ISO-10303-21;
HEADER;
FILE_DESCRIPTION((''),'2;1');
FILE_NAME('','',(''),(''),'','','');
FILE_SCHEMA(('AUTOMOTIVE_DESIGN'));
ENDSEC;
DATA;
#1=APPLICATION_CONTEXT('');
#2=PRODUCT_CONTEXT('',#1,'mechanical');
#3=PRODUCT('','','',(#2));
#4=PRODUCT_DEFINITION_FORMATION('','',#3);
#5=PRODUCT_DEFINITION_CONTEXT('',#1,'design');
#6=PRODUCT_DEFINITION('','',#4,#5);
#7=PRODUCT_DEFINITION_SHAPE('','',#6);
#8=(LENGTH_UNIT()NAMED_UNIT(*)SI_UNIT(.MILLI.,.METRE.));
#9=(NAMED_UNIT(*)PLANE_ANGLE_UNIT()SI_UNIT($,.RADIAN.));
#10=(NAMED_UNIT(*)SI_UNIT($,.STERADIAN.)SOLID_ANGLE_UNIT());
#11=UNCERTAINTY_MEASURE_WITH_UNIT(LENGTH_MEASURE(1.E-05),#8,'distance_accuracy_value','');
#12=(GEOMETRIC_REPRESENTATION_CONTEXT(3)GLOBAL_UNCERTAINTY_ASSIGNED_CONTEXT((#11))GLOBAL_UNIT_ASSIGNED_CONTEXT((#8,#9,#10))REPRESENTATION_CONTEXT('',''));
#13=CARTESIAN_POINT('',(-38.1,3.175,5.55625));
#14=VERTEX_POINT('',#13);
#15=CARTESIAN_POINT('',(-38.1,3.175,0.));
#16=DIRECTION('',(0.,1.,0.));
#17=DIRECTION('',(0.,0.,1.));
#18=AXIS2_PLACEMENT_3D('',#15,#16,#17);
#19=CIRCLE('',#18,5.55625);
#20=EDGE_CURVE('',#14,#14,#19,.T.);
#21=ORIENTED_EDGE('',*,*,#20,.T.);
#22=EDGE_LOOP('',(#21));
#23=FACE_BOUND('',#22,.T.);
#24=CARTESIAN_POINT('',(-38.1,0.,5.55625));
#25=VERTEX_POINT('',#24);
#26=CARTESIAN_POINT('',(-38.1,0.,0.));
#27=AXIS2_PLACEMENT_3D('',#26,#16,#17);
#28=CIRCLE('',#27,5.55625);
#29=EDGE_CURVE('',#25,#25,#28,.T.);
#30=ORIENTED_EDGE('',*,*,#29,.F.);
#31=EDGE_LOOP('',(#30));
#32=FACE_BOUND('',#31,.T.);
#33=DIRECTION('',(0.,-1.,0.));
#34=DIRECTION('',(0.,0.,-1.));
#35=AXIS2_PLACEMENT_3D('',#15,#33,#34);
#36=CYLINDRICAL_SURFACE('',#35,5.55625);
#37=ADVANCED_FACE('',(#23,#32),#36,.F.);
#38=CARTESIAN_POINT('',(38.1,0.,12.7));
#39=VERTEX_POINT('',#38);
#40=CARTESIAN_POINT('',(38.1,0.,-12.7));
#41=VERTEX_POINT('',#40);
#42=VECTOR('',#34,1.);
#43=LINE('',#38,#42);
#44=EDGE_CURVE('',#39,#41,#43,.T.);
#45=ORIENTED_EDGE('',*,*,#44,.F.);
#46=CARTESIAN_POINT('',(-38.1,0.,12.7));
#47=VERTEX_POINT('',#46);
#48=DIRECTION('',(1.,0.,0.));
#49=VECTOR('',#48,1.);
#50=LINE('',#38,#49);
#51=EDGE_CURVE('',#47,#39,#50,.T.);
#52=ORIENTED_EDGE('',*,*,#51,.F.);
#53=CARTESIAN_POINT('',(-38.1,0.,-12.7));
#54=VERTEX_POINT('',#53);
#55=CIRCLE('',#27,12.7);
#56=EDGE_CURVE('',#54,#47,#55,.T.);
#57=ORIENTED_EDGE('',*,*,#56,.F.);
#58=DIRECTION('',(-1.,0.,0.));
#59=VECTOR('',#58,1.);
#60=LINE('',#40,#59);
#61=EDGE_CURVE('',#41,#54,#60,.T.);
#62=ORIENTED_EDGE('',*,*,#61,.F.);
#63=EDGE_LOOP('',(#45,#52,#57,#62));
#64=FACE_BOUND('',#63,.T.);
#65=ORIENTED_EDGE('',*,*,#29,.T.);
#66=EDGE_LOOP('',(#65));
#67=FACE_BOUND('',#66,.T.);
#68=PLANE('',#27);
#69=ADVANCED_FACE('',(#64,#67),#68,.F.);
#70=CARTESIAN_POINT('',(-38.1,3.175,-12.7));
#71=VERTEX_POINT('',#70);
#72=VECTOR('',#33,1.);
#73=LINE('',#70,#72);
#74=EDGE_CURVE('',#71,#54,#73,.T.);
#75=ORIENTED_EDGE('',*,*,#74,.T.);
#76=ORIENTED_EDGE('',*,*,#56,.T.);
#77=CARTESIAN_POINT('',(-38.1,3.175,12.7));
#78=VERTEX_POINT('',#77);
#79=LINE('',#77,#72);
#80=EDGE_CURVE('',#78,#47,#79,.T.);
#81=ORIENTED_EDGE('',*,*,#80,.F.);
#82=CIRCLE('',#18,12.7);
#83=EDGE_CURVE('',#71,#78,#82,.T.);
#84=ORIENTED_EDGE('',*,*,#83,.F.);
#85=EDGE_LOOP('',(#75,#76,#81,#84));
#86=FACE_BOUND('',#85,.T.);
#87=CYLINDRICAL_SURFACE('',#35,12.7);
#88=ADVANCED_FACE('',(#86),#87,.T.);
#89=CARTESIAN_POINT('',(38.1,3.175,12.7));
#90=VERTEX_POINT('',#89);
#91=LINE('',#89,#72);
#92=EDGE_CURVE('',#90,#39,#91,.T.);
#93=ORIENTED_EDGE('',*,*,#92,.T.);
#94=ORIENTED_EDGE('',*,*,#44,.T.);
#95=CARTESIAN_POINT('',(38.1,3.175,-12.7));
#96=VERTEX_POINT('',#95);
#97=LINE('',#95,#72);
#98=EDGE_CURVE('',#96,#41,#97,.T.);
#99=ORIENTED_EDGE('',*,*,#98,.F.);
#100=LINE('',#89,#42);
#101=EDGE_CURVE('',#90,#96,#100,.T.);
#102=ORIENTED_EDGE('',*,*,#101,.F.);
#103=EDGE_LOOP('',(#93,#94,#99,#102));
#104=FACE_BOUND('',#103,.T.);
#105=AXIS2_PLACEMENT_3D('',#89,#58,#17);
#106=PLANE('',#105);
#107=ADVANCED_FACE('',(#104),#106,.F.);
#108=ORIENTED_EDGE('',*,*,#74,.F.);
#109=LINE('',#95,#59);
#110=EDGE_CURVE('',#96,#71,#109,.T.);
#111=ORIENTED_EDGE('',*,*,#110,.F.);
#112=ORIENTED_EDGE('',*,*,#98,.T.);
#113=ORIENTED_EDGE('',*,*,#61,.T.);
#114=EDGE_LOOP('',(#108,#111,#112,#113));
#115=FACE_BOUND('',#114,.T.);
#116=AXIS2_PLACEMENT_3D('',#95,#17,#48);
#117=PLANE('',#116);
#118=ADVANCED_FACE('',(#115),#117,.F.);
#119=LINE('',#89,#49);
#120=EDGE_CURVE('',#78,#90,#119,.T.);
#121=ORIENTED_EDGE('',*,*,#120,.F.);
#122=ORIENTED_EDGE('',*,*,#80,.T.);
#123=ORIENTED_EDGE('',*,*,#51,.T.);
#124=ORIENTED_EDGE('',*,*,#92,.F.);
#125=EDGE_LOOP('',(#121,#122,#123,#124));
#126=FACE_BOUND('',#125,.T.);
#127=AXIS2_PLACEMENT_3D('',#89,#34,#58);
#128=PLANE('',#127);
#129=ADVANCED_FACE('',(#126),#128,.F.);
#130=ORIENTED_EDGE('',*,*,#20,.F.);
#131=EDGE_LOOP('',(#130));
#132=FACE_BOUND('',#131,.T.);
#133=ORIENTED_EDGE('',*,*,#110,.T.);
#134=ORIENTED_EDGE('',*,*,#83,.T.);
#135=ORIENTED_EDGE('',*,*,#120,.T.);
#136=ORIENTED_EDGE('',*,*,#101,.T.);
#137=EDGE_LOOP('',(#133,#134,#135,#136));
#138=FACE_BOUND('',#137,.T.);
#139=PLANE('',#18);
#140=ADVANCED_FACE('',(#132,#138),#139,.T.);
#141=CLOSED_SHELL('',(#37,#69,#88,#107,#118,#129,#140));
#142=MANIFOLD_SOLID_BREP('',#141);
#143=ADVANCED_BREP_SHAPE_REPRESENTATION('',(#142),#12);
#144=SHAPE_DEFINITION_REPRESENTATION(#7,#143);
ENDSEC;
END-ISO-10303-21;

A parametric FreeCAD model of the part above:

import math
import FreeCAD as App
import Part
import Sketcher
Q = App.Units.Quantity

doc = App.newDocument("Part")
body = doc.addObject("PartDesign::Body", "Body")

# Sketch on XZ plane
sketch1 = body.newObject("Sketcher::SketchObject", "Sketch")
sketch1.AttachmentSupport = (doc.getObject("XZ_Plane"), [""])
sketch1.MapMode = "FlatFace"
sketch1.addGeometry(Part.LineSegment(App.Vector(-38, 13, 0), App.Vector(38, 13, 0)), False)
sketch1.addGeometry(Part.LineSegment(App.Vector(38, 13, 0), App.Vector(38, -13, 0)), False)
sketch1.addGeometry(Part.LineSegment(App.Vector(38, -13, 0), App.Vector(-38, -13, 0)), False)
sketch1.addGeometry(Part.ArcOfCircle(Part.Circle(App.Vector(-38, 0, 0), App.Vector(0, 0, 1), 13), math.radians(90), math.radians(270)), False)
sketch1.addGeometry(Part.Circle(App.Vector(-38, 0, 0), App.Vector(0, 0, 1), 6), False)
sketch1.addConstraint(Sketcher.Constraint("Coincident", 0, 2, 1, 1))
sketch1.addConstraint(Sketcher.Constraint("Coincident", 1, 2, 2, 1))
sketch1.addConstraint(Sketcher.Constraint("Tangent", 2, 2, 3, 2))
sketch1.addConstraint(Sketcher.Constraint("Tangent", 3, 1, 0, 1))
sketch1.addConstraint(Sketcher.Constraint("Horizontal", 0))
sketch1.addConstraint(Sketcher.Constraint("Vertical", 1))
sketch1.addConstraint(Sketcher.Constraint("Horizontal", 2))
sketch1.addConstraint(Sketcher.Constraint("Coincident", 4, 3, 3, 3))
sketch1.addConstraint(Sketcher.Constraint("Symmetric", 0, 2, 2, 2, -1, 1))
sketch1.addConstraint(Sketcher.Constraint("Radius", 3, Q("0.5 in")))
sketch1.addConstraint(Sketcher.Constraint("DistanceX", 0, 1, 0, 2, Q("3 in")))
sketch1.addConstraint(Sketcher.Constraint("Diameter", 4, Q("0.4375 in")))
pad1 = body.newObject("PartDesign::Pad", "Pad")
pad1.Profile = sketch1
pad1.Length = Q("0.125 in")
pad1.Reversed = True

doc.recompute()
